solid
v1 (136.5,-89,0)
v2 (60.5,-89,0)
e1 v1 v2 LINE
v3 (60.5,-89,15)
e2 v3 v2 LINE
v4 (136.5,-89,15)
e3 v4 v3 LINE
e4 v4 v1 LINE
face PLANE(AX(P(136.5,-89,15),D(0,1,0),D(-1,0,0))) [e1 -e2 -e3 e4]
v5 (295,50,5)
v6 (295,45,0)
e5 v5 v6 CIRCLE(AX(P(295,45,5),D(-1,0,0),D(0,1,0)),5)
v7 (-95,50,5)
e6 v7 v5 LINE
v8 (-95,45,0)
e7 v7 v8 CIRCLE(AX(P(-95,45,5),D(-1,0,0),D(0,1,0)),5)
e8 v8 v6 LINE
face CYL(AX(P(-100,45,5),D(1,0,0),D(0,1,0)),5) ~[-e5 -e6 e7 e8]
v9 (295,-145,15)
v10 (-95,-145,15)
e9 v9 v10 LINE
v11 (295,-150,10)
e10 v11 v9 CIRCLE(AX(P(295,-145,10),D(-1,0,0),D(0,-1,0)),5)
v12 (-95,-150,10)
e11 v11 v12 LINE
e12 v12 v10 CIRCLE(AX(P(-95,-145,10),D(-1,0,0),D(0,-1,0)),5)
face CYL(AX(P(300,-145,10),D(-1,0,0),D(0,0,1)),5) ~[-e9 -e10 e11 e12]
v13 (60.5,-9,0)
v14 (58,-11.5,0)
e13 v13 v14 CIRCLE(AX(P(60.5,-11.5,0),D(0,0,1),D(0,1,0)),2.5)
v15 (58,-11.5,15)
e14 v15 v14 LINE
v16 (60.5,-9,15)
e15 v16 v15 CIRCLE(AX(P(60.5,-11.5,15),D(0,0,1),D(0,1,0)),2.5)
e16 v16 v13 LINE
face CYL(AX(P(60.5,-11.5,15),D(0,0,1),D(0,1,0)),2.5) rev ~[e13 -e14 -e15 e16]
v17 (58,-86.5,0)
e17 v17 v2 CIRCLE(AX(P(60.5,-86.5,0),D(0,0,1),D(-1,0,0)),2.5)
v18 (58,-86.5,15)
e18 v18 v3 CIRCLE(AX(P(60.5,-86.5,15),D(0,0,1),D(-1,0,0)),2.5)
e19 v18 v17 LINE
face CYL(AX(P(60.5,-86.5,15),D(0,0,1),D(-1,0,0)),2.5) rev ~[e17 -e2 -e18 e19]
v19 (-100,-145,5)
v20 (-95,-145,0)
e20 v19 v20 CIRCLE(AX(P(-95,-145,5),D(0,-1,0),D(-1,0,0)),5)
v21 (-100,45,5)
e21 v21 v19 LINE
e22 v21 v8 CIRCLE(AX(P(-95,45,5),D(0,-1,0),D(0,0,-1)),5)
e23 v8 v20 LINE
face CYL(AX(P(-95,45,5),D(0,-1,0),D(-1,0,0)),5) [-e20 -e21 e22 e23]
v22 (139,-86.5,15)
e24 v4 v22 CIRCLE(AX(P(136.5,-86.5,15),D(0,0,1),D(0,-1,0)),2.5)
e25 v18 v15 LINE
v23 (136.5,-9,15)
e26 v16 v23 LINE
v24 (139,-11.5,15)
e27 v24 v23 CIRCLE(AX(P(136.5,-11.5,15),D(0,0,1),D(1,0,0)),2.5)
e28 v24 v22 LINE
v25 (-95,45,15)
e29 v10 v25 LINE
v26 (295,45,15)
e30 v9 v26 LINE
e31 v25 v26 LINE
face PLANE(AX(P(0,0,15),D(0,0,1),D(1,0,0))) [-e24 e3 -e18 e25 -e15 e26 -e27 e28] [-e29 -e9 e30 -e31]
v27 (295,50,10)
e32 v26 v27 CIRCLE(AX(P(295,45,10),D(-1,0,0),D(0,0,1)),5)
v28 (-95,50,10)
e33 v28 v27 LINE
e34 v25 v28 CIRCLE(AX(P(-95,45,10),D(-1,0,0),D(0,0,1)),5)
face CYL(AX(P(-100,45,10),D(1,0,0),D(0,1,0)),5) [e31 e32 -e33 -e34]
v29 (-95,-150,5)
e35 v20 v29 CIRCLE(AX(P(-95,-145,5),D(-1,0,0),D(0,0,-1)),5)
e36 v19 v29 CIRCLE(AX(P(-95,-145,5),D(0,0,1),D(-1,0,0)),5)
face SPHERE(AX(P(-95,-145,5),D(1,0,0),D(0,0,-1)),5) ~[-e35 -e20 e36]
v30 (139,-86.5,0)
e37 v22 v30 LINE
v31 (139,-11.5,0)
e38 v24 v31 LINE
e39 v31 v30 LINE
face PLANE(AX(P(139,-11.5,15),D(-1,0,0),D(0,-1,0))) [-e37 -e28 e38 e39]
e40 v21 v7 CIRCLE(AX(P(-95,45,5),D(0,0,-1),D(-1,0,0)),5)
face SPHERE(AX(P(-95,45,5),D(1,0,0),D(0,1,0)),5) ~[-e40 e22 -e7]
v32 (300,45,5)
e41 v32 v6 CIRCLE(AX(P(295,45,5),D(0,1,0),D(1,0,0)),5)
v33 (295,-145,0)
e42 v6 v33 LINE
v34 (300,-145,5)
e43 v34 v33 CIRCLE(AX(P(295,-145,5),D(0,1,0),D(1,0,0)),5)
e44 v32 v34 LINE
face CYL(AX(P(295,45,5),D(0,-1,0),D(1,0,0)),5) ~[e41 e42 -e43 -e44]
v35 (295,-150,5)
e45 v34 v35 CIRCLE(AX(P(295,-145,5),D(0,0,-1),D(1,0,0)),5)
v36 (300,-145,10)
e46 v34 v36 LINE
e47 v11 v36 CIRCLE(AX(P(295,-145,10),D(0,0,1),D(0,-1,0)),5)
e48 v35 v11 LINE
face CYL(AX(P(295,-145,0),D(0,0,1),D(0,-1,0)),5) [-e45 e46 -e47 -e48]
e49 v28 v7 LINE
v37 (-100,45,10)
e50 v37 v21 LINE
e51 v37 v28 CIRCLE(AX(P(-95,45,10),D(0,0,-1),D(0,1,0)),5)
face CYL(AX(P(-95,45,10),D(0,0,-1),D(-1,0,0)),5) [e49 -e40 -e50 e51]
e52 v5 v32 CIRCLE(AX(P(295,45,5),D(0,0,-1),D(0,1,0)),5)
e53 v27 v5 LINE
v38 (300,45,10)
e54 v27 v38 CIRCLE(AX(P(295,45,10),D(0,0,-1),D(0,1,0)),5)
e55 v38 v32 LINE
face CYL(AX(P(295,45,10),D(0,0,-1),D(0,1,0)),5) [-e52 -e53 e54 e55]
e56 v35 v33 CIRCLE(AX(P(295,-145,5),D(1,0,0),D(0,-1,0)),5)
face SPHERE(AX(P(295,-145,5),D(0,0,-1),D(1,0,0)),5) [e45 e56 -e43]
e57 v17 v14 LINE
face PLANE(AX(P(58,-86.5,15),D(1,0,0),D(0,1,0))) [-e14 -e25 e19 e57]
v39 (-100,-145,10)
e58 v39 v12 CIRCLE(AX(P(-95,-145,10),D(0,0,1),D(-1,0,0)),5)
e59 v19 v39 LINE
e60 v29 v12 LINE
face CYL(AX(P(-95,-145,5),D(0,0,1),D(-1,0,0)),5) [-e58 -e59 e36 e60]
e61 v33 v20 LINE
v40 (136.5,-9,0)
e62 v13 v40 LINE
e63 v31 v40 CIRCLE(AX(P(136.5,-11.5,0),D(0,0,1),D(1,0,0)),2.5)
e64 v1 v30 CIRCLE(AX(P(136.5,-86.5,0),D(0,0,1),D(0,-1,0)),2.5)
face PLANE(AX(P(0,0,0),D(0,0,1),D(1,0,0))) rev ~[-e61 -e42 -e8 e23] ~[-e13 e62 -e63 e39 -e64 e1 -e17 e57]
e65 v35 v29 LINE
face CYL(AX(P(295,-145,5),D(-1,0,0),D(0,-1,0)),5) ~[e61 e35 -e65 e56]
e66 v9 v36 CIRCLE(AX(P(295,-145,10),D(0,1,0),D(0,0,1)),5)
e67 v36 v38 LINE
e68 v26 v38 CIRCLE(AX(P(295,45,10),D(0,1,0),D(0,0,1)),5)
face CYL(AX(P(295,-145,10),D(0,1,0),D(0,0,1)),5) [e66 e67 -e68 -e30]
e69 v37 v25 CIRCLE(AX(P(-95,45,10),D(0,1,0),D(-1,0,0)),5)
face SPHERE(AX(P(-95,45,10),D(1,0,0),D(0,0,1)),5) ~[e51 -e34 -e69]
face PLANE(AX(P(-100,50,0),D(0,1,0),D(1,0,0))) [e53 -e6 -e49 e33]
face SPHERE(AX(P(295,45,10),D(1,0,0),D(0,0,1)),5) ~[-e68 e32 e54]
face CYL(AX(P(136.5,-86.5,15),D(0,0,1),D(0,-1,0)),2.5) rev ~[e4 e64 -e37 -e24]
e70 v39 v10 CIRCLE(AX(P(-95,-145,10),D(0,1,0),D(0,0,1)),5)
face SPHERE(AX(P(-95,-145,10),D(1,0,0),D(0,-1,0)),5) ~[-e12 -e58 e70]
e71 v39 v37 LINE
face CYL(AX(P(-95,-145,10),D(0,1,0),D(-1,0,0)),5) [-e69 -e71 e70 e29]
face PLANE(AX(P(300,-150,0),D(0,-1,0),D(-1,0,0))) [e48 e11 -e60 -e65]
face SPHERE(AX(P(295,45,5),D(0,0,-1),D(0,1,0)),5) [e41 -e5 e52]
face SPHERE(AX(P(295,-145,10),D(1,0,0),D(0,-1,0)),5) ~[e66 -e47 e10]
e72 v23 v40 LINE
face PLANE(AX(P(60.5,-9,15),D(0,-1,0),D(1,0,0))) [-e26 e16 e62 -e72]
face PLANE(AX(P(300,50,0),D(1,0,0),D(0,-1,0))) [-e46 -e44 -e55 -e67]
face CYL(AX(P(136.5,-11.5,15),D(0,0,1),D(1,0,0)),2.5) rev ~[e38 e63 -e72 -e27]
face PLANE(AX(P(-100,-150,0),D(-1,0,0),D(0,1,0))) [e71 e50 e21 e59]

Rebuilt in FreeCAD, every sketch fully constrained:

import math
import FreeCAD as App
import Part
import Sketcher
Q = App.Units.Quantity


def edges_at(feature, points):
    """Names of the edges that pass closest to the given points."""
    edges = feature.Shape.Edges
    near = lambda p: min(range(len(edges)), key=lambda i: edges[i].distToShape(Part.Vertex(*p))[0])
    return sorted({f"Edge{near(p) + 1}" for p in points})

doc = App.newDocument("Part")
params = doc.addObject("Spreadsheet::Sheet", "Params")
for row, (alias, value) in enumerate([
    ("sketch1_height", "200 mm"),
    ("sketch1_width", "400 mm"),
    ("pad1_length", "15 mm"),
    ("sketch2_radius", "2.5 mm"),
    ("sketch2_width", "76 mm"),
    ("sketch2_height", "75 mm"),
    ("pocket1_length", "70 mm"),
    ("fillet_radius", "5 mm"),
    ("fillet2_radius", "5 mm"),
    ("fillet3_radius", "5 mm"),
    ("fillet4_radius", "5 mm"),
    ("fillet5_radius", "5 mm"),
], start=1):
    params.set(f"A{row}", alias)
    params.set(f"B{row}", "=" + value)
    params.setAlias(f"B{row}", alias)

body = doc.addObject("PartDesign::Body", "Body")

# Sketch on XY plane
sketch1 = doc.addObject("Sketcher::SketchObject", "Sketch")
body.addObject(sketch1)
sketch1.AttachmentSupport = (doc.XY_Plane, [""])
sketch1.MapMode = "FlatFace"
sketch1.addGeometry([
    Part.LineSegment(App.Vector(300, 50, 0), App.Vector(-100, 50, 0)),
    Part.LineSegment(App.Vector(-100, 50, 0), App.Vector(-100, -150, 0)),
    Part.LineSegment(App.Vector(-100, -150, 0), App.Vector(300, -150, 0)),
    Part.LineSegment(App.Vector(300, -150, 0), App.Vector(300, 50, 0)),
], False)
sketch1.addConstraint([
    Sketcher.Constraint("Coincident", 0, 2, 1, 1),
    Sketcher.Constraint("Coincident", 1, 2, 2, 1),
    Sketcher.Constraint("Coincident", 2, 2, 3, 1),
    Sketcher.Constraint("Coincident", 3, 2, 0, 1),
    Sketcher.Constraint("Horizontal", 0),
    Sketcher.Constraint("Vertical", 1),
    Sketcher.Constraint("Horizontal", 2),
    Sketcher.Constraint("Vertical", 3),
    Sketcher.Constraint("DistanceY", 1, 2, 1, 1, Q("200 mm")),
    Sketcher.Constraint("DistanceX", 0, 2, 0, 1, Q("400 mm")),
    Sketcher.Constraint("DistanceX", 0, 2, -1, 1, Q("100 mm")),
    Sketcher.Constraint("DistanceY", -1, 1, 0, 2, Q("50 mm")),
])
sketch1.setExpression("Constraints[8]", "Params.sketch1_height")
sketch1.setExpression("Constraints[9]", "Params.sketch1_width")
pad1 = doc.addObject("PartDesign::Pad", "Pad")
body.addObject(pad1)
pad1.Profile = sketch1
pad1.setExpression("Length", "Params.pad1_length")

# Sketch on XY plane
sketch2 = doc.addObject("Sketcher::SketchObject", "Sketch001")
body.addObject(sketch2)
sketch2.AttachmentSupport = (doc.XY_Plane, [""])
sketch2.MapMode = "FlatFace"
sketch2.AttachmentOffset = App.Placement(App.Vector(0, 0, 15), App.Rotation())
sketch2.addGeometry([
    Part.LineSegment(App.Vector(136.5, -9, 0), App.Vector(60.5, -9, 0)),  # 0
    Part.ArcOfCircle(Part.Circle(App.Vector(60.5, -11.5, 0), App.Vector(0, 0, 1), 2.5), math.radians(90), math.radians(180)),  # 1
    Part.LineSegment(App.Vector(58, -11.5, 0), App.Vector(58, -86.5, 0)),  # 2
    Part.ArcOfCircle(Part.Circle(App.Vector(60.5, -86.5, 0), App.Vector(0, 0, 1), 2.5), math.radians(180), math.radians(270)),  # 3
    Part.LineSegment(App.Vector(60.5, -89, 0), App.Vector(136.5, -89, 0)),  # 4
    Part.ArcOfCircle(Part.Circle(App.Vector(136.5, -86.5, 0), App.Vector(0, 0, 1), 2.5), math.radians(-90), math.radians(0)),  # 5
    Part.LineSegment(App.Vector(139, -86.5, 0), App.Vector(139, -11.5, 0)),  # 6
    Part.ArcOfCircle(Part.Circle(App.Vector(136.5, -11.5, 0), App.Vector(0, 0, 1), 2.5), math.radians(0), math.radians(90)),  # 7
], False)
sketch2.addConstraint([
    Sketcher.Constraint("Tangent", 0, 2, 1, 1),
    Sketcher.Constraint("Tangent", 1, 2, 2, 1),
    Sketcher.Constraint("Tangent", 2, 2, 3, 1),
    Sketcher.Constraint("Tangent", 3, 2, 4, 1),
    Sketcher.Constraint("Tangent", 4, 2, 5, 1),
    Sketcher.Constraint("Tangent", 5, 2, 6, 1),
    Sketcher.Constraint("Tangent", 6, 2, 7, 1),
    Sketcher.Constraint("Tangent", 7, 2, 0, 1),
    Sketcher.Constraint("Horizontal", 0),
    Sketcher.Constraint("Vertical", 2),
    Sketcher.Constraint("Horizontal", 4),
    Sketcher.Constraint("Vertical", 6),
    Sketcher.Constraint("Equal", 1, 3),
    Sketcher.Constraint("Equal", 3, 5),
    Sketcher.Constraint("Equal", 5, 7),
    Sketcher.Constraint("Radius", 1, Q("2.5 mm")),
    Sketcher.Constraint("DistanceX", 0, 2, 0, 1, Q("76 mm")),
    Sketcher.Constraint("DistanceY", 2, 2, 2, 1, Q("75 mm")),
    Sketcher.Constraint("DistanceY", 0, 2, -1, 1, Q("9 mm")),
    Sketcher.Constraint("DistanceX", -1, 1, 1, 2, Q("58 mm")),
])
sketch2.setExpression("Constraints[15]", "Params.sketch2_radius")
sketch2.setExpression("Constraints[16]", "Params.sketch2_width")
sketch2.setExpression("Constraints[17]", "Params.sketch2_height")
pocket1 = doc.addObject("PartDesign::Pocket", "Pocket")
body.addObject(pocket1)
pocket1.Profile = sketch2
pocket1.setExpression("Length", "Params.pocket1_length")
doc.recompute()

fillet = doc.addObject("PartDesign::Fillet", "Fillet")
body.addObject(fillet)
fillet.Base = (pocket1, edges_at(pocket1, [(100, 50, 15)]))
fillet.setExpression("Radius", "Params.fillet_radius")
doc.recompute()

fillet2 = doc.addObject("PartDesign::Fillet", "Fillet001")
body.addObject(fillet2)
fillet2.Base = (fillet, edges_at(fillet, [(100, -150, 15)]))
fillet2.setExpression("Radius", "Params.fillet2_radius")
doc.recompute()

fillet3 = doc.addObject("PartDesign::Fillet", "Fillet002")
body.addObject(fillet3)
fillet3.Base = (fillet2, edges_at(fillet2, [
    (300, -150, 5),
    (300, -148.536, 13.536),
    (300, -50, 15),
    (300, 48.535, 13.536),
    (300, 50, 5),
]))
fillet3.setExpression("Radius", "Params.fillet3_radius")
doc.recompute()

fillet4 = doc.addObject("PartDesign::Fillet", "Fillet003")
body.addObject(fillet4)
fillet4.Base = (fillet3, edges_at(fillet3, [
    (97.5, 50, 0),
    (298.536, 48.535, 0),
    (300, -50, 0),
    (298.536, -148.536, 0),
    (97.5, -150, 0),
]))
fillet4.setExpression("Radius", "Params.fillet4_radius")
doc.recompute()

fillet5 = doc.addObject("PartDesign::Fillet", "Fillet004")
body.addObject(fillet5)
fillet5.Base = (fillet4, edges_at(fillet4, [
    (-100, -150, 7.5),
    (-100, -148.536, 1.464),
    (-100, -50, 0),
    (-100, 48.535, 1.464),
    (-100, 50, 7.5),
    (-100, 48.535, 13.536),
    (-100, -50, 15),
    (-100, -148.536, 13.536),
]))
fillet5.setExpression("Radius", "Params.fillet5_radius")

doc.recompute()
